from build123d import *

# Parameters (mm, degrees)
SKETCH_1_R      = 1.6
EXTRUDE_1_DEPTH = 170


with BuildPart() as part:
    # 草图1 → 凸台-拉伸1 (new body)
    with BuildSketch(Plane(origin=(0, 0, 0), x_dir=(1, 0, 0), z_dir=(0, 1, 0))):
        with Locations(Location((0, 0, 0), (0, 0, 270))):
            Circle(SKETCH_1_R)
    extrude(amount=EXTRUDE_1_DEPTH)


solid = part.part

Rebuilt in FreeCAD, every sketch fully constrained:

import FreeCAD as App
import Part
import Sketcher
Q = App.Units.Quantity

doc = App.newDocument("Part")
params = doc.addObject("Spreadsheet::Sheet", "Params")
for row, (alias, value) in enumerate([
    ("sketch1_diameter", "3.2 mm"),
    ("pad1_length", "170 mm"),
], start=1):
    params.set(f"A{row}", alias)
    params.set(f"B{row}", "=" + value)
    params.setAlias(f"B{row}", alias)

body = doc.addObject("PartDesign::Body", "Body")

# Sketch on XZ plane
sketch1 = body.newObject("Sketcher::SketchObject", "Sketch")
sketch1.AttachmentSupport = (doc.getObject("XZ_Plane"), [""])
sketch1.MapMode = "FlatFace"
sketch1.addGeometry(Part.Circle(App.Vector(0, 0, 0), App.Vector(0, 0, 1), 1.6), False)
sketch1.addConstraint([
    Sketcher.Constraint("Coincident", 0, 3, -1, 1),
    Sketcher.Constraint("Diameter", 0, Q("3.2 mm")),
])
sketch1.setExpression("Constraints[1]", "Params.sketch1_diameter")
pad1 = body.newObject("PartDesign::Pad", "Pad")
pad1.Profile = sketch1
pad1.setExpression("Length", "Params.pad1_length")
pad1.Reversed = True

doc.recompute()
